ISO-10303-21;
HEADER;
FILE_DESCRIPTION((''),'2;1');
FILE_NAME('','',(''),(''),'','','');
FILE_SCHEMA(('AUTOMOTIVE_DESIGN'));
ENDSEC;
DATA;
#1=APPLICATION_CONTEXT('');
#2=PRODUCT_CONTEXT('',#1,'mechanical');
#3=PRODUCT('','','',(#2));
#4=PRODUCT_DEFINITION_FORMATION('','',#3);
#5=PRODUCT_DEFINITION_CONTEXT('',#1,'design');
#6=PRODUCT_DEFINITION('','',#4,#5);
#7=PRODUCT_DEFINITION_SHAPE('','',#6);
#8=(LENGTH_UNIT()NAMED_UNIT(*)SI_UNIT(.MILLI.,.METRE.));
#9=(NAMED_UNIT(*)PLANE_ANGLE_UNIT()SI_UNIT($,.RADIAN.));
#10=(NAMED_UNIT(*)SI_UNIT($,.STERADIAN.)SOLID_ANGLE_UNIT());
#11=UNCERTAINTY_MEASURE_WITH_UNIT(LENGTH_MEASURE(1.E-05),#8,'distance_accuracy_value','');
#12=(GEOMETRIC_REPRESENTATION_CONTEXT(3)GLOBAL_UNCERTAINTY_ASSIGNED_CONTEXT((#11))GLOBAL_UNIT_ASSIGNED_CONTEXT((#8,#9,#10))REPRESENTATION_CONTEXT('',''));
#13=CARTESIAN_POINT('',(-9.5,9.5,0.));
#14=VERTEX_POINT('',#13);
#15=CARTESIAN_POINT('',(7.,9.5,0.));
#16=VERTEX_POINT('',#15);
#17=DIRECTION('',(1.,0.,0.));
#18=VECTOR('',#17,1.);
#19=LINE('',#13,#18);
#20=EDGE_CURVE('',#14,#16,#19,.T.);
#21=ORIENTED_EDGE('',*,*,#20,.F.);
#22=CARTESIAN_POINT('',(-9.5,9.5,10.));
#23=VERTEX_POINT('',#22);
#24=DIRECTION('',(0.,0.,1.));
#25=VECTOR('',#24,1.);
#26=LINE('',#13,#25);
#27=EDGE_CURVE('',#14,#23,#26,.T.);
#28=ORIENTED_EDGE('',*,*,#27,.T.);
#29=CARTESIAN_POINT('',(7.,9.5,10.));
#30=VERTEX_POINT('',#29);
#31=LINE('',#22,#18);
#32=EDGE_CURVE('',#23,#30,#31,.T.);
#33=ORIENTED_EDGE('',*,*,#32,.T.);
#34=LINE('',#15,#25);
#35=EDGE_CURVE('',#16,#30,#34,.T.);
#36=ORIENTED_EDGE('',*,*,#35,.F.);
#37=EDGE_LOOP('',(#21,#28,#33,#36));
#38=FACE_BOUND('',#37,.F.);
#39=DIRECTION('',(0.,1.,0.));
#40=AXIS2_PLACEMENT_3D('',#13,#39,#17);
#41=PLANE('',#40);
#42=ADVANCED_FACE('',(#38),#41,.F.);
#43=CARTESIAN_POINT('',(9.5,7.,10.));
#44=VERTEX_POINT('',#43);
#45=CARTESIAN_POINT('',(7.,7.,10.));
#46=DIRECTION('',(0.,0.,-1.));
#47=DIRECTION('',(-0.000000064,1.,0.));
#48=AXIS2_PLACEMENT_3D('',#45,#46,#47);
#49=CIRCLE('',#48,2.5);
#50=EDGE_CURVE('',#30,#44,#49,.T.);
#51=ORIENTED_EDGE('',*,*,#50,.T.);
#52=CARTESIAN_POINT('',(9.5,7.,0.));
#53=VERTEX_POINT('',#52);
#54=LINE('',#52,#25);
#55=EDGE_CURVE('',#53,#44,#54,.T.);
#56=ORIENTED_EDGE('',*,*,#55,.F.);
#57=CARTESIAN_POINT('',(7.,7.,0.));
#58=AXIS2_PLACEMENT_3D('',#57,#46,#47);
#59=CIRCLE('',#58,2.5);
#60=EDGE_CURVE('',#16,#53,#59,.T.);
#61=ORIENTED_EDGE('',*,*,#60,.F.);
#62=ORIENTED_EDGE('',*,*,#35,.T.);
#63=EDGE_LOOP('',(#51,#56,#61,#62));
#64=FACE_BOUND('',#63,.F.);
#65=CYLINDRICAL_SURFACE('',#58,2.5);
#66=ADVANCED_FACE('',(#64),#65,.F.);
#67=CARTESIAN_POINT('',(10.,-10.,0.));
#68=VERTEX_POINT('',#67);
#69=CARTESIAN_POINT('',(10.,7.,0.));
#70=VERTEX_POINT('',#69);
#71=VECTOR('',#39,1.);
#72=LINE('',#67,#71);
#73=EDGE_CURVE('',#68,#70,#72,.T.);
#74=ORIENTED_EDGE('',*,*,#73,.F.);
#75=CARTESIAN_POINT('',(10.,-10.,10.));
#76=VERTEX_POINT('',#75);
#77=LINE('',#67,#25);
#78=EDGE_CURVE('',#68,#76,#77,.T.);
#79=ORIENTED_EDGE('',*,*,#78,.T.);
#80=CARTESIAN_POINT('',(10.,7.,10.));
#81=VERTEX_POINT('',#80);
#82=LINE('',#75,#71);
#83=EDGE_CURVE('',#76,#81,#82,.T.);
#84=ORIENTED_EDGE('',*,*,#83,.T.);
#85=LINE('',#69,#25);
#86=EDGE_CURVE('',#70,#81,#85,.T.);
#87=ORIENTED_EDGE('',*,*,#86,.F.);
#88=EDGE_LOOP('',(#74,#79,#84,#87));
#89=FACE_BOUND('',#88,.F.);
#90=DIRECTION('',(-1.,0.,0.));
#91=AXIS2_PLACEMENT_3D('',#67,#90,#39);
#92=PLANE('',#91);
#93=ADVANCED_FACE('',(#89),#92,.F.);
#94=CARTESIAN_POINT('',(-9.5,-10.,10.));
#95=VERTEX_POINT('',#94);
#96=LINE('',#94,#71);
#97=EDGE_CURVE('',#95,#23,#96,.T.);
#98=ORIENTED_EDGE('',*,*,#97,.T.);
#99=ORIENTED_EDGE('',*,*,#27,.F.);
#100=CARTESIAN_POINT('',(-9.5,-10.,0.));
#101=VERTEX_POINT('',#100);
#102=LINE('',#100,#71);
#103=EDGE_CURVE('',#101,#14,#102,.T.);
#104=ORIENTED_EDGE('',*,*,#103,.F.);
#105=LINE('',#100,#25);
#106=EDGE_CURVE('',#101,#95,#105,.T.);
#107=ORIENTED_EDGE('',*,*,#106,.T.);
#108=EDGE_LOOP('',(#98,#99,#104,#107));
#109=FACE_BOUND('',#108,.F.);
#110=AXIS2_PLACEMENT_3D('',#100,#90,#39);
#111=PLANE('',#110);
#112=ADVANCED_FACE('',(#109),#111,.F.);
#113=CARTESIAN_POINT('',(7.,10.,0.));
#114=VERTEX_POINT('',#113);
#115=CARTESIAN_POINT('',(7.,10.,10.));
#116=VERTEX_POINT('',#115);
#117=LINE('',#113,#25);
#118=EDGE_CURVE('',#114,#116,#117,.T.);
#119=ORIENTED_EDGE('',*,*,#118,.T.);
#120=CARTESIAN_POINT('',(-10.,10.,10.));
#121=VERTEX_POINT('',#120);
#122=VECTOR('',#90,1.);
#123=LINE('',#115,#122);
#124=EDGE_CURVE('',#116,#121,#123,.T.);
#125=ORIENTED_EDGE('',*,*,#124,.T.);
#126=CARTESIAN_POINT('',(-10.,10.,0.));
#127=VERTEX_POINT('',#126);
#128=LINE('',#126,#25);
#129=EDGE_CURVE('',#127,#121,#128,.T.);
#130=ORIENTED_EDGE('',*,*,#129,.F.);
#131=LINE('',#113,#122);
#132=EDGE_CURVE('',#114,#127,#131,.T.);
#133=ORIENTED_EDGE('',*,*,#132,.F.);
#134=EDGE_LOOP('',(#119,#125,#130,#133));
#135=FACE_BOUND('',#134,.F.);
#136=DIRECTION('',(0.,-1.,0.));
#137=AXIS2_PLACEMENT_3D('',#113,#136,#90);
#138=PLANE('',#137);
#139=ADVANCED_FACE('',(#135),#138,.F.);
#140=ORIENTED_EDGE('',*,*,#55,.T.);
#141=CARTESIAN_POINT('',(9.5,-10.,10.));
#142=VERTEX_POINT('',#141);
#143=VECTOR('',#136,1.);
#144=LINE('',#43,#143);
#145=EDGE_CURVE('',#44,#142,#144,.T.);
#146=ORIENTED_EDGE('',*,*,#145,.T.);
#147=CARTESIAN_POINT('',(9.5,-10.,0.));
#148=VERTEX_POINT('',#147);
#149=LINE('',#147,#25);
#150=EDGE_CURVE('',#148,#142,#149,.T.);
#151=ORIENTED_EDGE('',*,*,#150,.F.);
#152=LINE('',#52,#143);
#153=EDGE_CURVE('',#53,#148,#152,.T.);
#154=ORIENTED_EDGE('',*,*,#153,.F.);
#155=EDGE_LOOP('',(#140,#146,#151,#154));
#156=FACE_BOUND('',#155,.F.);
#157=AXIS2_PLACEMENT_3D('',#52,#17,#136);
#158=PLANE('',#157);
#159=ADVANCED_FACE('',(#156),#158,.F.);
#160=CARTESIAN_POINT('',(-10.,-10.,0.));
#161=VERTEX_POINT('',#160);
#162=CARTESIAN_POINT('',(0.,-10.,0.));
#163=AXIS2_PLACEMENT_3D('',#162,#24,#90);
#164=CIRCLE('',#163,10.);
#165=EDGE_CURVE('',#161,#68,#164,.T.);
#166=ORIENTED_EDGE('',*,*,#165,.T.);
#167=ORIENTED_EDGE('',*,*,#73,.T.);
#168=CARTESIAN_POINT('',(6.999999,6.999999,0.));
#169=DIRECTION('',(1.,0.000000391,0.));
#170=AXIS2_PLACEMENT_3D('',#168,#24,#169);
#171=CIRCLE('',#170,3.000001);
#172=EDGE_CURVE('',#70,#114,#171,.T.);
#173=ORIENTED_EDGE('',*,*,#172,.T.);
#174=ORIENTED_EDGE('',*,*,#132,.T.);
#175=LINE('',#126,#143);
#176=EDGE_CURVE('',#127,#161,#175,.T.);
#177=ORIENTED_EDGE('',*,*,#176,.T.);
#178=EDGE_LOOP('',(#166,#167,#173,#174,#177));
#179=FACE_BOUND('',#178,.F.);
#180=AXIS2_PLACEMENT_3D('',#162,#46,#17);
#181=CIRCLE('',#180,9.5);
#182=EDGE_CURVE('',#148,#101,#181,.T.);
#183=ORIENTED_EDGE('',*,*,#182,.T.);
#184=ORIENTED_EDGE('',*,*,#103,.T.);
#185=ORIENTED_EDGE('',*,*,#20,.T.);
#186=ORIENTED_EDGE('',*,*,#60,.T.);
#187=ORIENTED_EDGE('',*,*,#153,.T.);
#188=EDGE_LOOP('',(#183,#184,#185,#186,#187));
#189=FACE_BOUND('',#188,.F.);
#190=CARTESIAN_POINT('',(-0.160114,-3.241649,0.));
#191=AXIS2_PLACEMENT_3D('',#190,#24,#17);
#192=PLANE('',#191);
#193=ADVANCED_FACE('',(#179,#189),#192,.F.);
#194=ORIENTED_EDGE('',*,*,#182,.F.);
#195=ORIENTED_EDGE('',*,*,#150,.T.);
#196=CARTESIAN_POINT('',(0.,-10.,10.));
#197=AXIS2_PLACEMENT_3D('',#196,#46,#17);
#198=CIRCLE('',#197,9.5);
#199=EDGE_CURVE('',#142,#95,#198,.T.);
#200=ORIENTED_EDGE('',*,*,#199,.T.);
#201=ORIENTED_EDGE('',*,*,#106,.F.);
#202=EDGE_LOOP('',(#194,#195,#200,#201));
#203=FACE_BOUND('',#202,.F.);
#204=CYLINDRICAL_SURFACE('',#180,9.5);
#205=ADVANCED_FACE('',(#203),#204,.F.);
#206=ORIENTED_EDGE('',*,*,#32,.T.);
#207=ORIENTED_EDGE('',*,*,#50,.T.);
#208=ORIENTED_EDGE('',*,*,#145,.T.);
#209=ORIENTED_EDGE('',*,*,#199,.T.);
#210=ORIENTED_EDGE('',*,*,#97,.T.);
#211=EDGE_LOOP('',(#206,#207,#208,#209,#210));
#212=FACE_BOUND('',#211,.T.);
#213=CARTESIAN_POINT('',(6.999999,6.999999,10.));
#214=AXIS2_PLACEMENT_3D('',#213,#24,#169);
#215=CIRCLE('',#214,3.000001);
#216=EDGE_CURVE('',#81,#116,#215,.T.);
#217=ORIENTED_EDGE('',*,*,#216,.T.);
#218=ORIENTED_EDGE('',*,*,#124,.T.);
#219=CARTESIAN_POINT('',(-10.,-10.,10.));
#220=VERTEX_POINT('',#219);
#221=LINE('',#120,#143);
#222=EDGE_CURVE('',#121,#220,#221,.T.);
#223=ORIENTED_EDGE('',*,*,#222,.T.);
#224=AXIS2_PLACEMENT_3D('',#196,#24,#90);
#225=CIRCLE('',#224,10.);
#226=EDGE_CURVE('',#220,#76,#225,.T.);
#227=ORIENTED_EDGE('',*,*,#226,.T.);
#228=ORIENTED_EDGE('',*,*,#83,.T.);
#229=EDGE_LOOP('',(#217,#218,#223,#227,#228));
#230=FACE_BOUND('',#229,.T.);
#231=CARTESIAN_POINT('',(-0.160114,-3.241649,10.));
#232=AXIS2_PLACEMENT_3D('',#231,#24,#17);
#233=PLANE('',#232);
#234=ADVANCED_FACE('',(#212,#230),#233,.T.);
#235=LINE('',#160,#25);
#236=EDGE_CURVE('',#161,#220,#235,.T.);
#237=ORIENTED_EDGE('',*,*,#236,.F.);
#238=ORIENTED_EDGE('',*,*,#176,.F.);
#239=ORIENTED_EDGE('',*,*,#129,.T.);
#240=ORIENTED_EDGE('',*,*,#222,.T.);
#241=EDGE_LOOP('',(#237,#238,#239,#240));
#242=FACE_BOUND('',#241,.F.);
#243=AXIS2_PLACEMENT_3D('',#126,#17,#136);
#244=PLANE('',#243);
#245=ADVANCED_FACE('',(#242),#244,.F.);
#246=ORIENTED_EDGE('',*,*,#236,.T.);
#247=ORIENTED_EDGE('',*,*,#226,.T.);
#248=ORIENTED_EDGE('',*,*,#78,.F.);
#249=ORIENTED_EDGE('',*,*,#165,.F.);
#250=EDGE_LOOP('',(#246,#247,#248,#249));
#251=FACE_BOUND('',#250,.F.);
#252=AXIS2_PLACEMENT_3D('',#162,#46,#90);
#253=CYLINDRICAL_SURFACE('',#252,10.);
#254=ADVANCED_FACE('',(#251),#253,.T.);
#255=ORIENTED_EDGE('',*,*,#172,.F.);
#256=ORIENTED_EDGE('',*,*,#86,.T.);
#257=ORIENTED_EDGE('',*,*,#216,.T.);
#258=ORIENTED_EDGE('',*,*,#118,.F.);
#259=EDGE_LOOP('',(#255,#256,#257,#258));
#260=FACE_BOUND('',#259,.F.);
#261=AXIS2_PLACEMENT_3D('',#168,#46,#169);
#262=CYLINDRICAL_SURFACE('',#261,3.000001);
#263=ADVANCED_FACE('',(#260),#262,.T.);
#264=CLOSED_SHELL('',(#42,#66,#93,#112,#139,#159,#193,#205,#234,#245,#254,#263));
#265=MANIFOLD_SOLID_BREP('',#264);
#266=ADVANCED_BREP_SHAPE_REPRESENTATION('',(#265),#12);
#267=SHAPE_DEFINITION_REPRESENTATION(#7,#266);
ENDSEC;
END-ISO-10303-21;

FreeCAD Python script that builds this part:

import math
import FreeCAD as App
import Part
import Sketcher

V = App.Vector
Q = App.Units.Quantity

doc = App.newDocument("Part")
params = doc.addObject("Spreadsheet::Sheet", "Params")
for row, (alias, value) in enumerate([
    ("sketch1_radius", "10 mm"),
    ("sketch1_radius2", "3.000001 mm"),
    ("sketch1_radius3", "2.5 mm"),
    ("pad1_length", "10 mm"),
], start=1):
    params.set(f"A{row}", alias)
    params.set(f"B{row}", "=" + value)
    params.setAlias(f"B{row}", alias)

body = doc.addObject("PartDesign::Body", "Body")

# Sketch on XY plane
sketch1 = doc.addObject("Sketcher::SketchObject", "Sketch")
body.addObject(sketch1)
sketch1.AttachmentSupport = (doc.XY_Plane, [""])
sketch1.MapMode = "FlatFace"
sketch1.addGeometry([
    Part.LineSegment(V(7, 10, 0), V(-10, 10, 0)),  # 0
    Part.LineSegment(V(-10, 10, 0), V(-10, -10, 0)),  # 1
    Part.ArcOfCircle(Part.Circle(V(0, -10, 0), V(0, 0, 1), 10), math.radians(180), math.radians(360)),  # 2
    Part.LineSegment(V(10, -10, 0), V(10, 7, 0)),  # 3
    Part.ArcOfCircle(Part.Circle(V(7, 7, 0), V(0, 0, 1), 3), math.radians(0), math.radians(90)),  # 4
    Part.LineSegment(V(-9.5, 9.5, 0), V(7, 9.5, 0)),  # 5
    Part.ArcOfCircle(Part.Circle(V(7, 7, 0), V(0, 0, 1), 2.5), math.radians(0), math.radians(90)),  # 6
    Part.LineSegment(V(9.5, 7, 0), V(9.5, -10, 0)),  # 7
    Part.ArcOfCircle(Part.Circle(V(0, -10, 0), V(0, 0, 1), 9.5), math.radians(180), math.radians(360)),  # 8
    Part.LineSegment(V(-9.5, -10, 0), V(-9.5, 9.5, 0)),  # 9
], False)
sketch1.addConstraint([
    Sketcher.Constraint("Coincident", 0, 2, 1, 1),
    Sketcher.Constraint("Tangent", 1, 2, 2, 1),
    Sketcher.Constraint("Tangent", 2, 2, 3, 1),
    Sketcher.Constraint("Tangent", 3, 2, 4, 1),
    Sketcher.Constraint("Tangent", 4, 2, 0, 1),
    Sketcher.Constraint("Tangent", 5, 2, 6, 2),
    Sketcher.Constraint("Tangent", 6, 1, 7, 1),
    Sketcher.Constraint("Tangent", 7, 2, 8, 2),
    Sketcher.Constraint("Tangent", 8, 1, 9, 1),
    Sketcher.Constraint("Coincident", 9, 2, 5, 1),
    Sketcher.Constraint("Horizontal", 0),
    Sketcher.Constraint("Vertical", 1),
    Sketcher.Constraint("Vertical", 3),
    Sketcher.Constraint("Horizontal", 5),
    Sketcher.Constraint("Vertical", 7),
    Sketcher.Constraint("Vertical", 9),
    Sketcher.Constraint("Coincident", 6, 3, 4, 3),
    Sketcher.Constraint("Coincident", 8, 3, 2, 3),
    Sketcher.Constraint("Symmetric", 0, 2, 2, 2, -1, 1),
    Sketcher.Constraint("Equal", 0, 3),
    Sketcher.Constraint("Radius", 2, Q("10 mm")),
    Sketcher.Constraint("Radius", 4, Q("3.000001 mm")),
    Sketcher.Constraint("Radius", 6, Q("2.5 mm")),
])
sketch1.setExpression("Constraints[20]", "Params.sketch1_radius")
sketch1.setExpression("Constraints[21]", "Params.sketch1_radius2")
sketch1.setExpression("Constraints[22]", "Params.sketch1_radius3")
pad1 = doc.addObject("PartDesign::Pad", "Pad")
body.addObject(pad1)
pad1.Profile = sketch1
pad1.setExpression("Length", "Params.pad1_length")

doc.recompute()
